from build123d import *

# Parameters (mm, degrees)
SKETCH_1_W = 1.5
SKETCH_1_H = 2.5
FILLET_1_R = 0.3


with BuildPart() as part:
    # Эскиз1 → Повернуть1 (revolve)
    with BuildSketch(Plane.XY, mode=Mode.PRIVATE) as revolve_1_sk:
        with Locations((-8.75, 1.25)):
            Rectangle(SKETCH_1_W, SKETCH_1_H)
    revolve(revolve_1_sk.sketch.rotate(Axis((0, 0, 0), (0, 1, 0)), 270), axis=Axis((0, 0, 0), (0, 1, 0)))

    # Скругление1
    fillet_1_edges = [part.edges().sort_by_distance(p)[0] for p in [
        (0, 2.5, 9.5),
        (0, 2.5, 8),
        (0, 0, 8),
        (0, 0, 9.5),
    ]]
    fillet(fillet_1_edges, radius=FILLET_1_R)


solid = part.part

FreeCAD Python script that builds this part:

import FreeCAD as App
import Part
import Sketcher
Q = App.Units.Quantity


def edges_at(feature, points):
    """Names of the edges that pass closest to the given points."""
    edges = feature.Shape.Edges
    near = lambda p: min(range(len(edges)), key=lambda i: edges[i].distToShape(Part.Vertex(*p))[0])
    return sorted({f"Edge{near(p) + 1}" for p in points})


def add_polygon(sketch, points):
    """Adds a closed chain of lines whose ends are joined by coincident constraints."""
    first, n = sketch.GeometryCount, len(points)
    for a, b in zip(points, points[1:] + points[:1]):
        sketch.addGeometry(Part.LineSegment(App.Vector(*a, 0), App.Vector(*b, 0)), False)
    for i in range(n):
        sketch.addConstraint(Sketcher.Constraint("Coincident", first + i, 2, first + (i + 1) % n, 1))

doc = App.newDocument("Part")
body = doc.addObject("PartDesign::Body", "Body")

sketch1 = doc.addObject("Sketcher::SketchObject", "Sketch")
body.addObject(sketch1)
sketch1.AttachmentSupport = (doc.XY_Plane, [""])
sketch1.MapMode = "FlatFace"
add_polygon(sketch1, [(-9.5, 2.5), (-9.5, 0), (-8, 0), (-8, 2.5)])
sketch1.addConstraint(Sketcher.Constraint("Vertical", 0))
sketch1.addConstraint(Sketcher.Constraint("Horizontal", 1))
sketch1.addConstraint(Sketcher.Constraint("Vertical", 2))
sketch1.addConstraint(Sketcher.Constraint("Horizontal", 3))
sketch1.addConstraint(Sketcher.Constraint("PointOnObject", 0, 2, -1))
sketch1.addConstraint(Sketcher.Constraint("DistanceX", 1, 1, 1, 2, Q("1.5 mm")))
sketch1.addConstraint(Sketcher.Constraint("DistanceY", 0, 2, 0, 1, Q("2.5 mm")))
sketch1.addConstraint(Sketcher.Constraint("DistanceX", 1, 2, -1, 1, Q("8 mm")))
revolution = doc.addObject("PartDesign::Revolution", "Revolution")
body.addObject(revolution)
revolution.Profile = sketch1
revolution.ReferenceAxis = (sketch1, ["V_Axis"])
revolution.Angle = 360
doc.recompute()

fillet = doc.addObject("PartDesign::Fillet", "Fillet")
body.addObject(fillet)
fillet.Base = (revolution, edges_at(revolution, [
    (0, 2.5, 9.5),
    (0, 2.5, 8),
    (0, 0, 8),
    (0, 0, 9.5),
]))
fillet.Radius = 0.3

doc.recompute()
